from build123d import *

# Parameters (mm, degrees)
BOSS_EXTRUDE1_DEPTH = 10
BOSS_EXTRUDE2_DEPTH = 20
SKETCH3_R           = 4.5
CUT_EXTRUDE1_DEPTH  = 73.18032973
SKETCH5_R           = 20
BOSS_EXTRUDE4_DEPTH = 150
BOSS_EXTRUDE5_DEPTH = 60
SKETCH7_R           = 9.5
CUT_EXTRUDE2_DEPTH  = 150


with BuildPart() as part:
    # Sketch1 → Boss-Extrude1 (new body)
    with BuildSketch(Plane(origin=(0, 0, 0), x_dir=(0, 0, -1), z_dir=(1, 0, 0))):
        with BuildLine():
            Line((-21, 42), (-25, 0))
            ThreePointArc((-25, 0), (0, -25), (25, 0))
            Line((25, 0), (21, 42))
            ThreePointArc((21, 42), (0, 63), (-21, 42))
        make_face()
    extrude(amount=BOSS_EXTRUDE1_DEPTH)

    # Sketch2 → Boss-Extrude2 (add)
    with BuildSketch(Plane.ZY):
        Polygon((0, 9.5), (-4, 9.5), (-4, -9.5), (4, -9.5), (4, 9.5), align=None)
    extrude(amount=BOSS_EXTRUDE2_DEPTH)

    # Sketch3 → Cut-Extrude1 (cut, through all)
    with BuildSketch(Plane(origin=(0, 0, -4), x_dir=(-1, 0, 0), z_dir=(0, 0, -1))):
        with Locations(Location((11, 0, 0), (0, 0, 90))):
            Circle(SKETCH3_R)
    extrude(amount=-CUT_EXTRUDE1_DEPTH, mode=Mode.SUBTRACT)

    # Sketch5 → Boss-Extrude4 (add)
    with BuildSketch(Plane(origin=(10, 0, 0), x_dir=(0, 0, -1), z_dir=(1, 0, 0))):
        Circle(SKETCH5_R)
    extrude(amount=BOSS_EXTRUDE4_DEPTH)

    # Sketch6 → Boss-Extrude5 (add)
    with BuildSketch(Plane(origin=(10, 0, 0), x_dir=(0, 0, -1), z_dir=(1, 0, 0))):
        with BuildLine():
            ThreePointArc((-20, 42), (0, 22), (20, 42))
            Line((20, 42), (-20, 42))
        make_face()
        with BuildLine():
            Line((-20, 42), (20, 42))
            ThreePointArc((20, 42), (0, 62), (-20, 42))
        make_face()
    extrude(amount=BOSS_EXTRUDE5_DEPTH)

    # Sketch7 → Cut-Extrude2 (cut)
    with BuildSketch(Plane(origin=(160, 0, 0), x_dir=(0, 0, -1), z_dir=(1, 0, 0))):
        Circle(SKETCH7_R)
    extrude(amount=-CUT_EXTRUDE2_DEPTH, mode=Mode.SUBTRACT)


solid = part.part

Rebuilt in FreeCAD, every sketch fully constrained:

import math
import FreeCAD as App
import Part
import Sketcher
from FreeCAD import Vector
Q = App.Units.Quantity

doc = App.newDocument("Part")
params = doc.addObject("Spreadsheet::Sheet", "Params")
for row, (alias, value) in enumerate([
    ("sketch1_radius", "25 mm"),
    ("sketch1_radius2", "21 mm"),
    ("pad1_length", "10 mm"),
    ("sketch2_width", "19 mm"),
    ("sketch2_height", "8 mm"),
    ("pad2_length", "20 mm"),
    ("sketch3_diameter", "9 mm"),
    ("sketch4_diameter", "40 mm"),
    ("pad3_length", "150 mm"),
    ("sketch5_diameter", "40 mm"),
    ("pad4_length", "60 mm"),
    ("sketch6_diameter", "19 mm"),
    ("pocket2_length", "150 mm"),
], start=1):
    params.set(f"A{row}", alias)
    params.set(f"B{row}", "=" + value)
    params.setAlias(f"B{row}", alias)

body = doc.addObject("PartDesign::Body", "Body")

# Sketch on YZ plane
sketch1 = body.newObject("Sketcher::SketchObject", "Sketch")
sketch1.AttachmentSupport = (doc.getObject("YZ_Plane"), [""])
sketch1.MapMode = "FlatFace"
sketch1.addGeometry(Part.LineSegment(Vector(42, 21, 0), Vector(0, 25, 0)), False)
sketch1.addGeometry(Part.ArcOfCircle(Part.Circle(Vector(0, 0, 0), Vector(0, 0, 1), 25), math.radians(90), math.radians(270)), False)
sketch1.addGeometry(Part.LineSegment(Vector(0, -25, 0), Vector(42, -21, 0)), False)
sketch1.addGeometry(Part.ArcOfCircle(Part.Circle(Vector(42, 0, 0), Vector(0, 0, 1), 21), math.radians(-90), math.radians(90)), False)
sketch1.addConstraint(Sketcher.Constraint("Coincident", 0, 2, 1, 1))
sketch1.addConstraint(Sketcher.Constraint("Coincident", 1, 2, 2, 1))
sketch1.addConstraint(Sketcher.Constraint("Coincident", 2, 2, 3, 1))
sketch1.addConstraint(Sketcher.Constraint("Coincident", 3, 2, 0, 1))
sketch1.addConstraint(Sketcher.Constraint("Coincident", 1, 3, -1, 1))
sketch1.addConstraint(Sketcher.Constraint("Symmetric", 2, 2, 3, 2, -1))
sketch1.addConstraint(Sketcher.Constraint("PointOnObject", 0, 2, -2))
sketch1.addConstraint(Sketcher.Constraint("PointOnObject", 1, 2, -2))
sketch1.addConstraint(Sketcher.Constraint("Vertical", 3, 3, 2, 2))
sketch1.addConstraint(Sketcher.Constraint("Radius", 1, Q("25 mm")))
sketch1.addConstraint(Sketcher.Constraint("Radius", 3, Q("21 mm")))
sketch1.addConstraint(Sketcher.Constraint("DistanceX", -1, 1, 3, 3, Q("42 mm")))
sketch1.setExpression("Constraints[9]", "Params.sketch1_radius")
sketch1.setExpression("Constraints[10]", "Params.sketch1_radius2")
pad1 = body.newObject("PartDesign::Pad", "Pad")
pad1.Profile = sketch1
pad1.setExpression("Length", "Params.pad1_length")

# Sketch on YZ plane
sketch2 = body.newObject("Sketcher::SketchObject", "Sketch001")
sketch2.AttachmentSupport = (doc.getObject("YZ_Plane"), [""])
sketch2.MapMode = "FlatFace"
sketch2.addGeometry(Part.LineSegment(Vector(10, -4, 0), Vector(-10, -4, 0)), False)
sketch2.addGeometry(Part.LineSegment(Vector(-10, -4, 0), Vector(-10, 4, 0)), False)
sketch2.addGeometry(Part.LineSegment(Vector(-10, 4, 0), Vector(10, 4, 0)), False)
sketch2.addGeometry(Part.LineSegment(Vector(10, 4, 0), Vector(10, -4, 0)), False)
sketch2.addConstraint(Sketcher.Constraint("Coincident", 0, 2, 1, 1))
sketch2.addConstraint(Sketcher.Constraint("Coincident", 1, 2, 2, 1))
sketch2.addConstraint(Sketcher.Constraint("Coincident", 2, 2, 3, 1))
sketch2.addConstraint(Sketcher.Constraint("Coincident", 3, 2, 0, 1))
sketch2.addConstraint(Sketcher.Constraint("Horizontal", 0))
sketch2.addConstraint(Sketcher.Constraint("Vertical", 1))
sketch2.addConstraint(Sketcher.Constraint("Horizontal", 2))
sketch2.addConstraint(Sketcher.Constraint("Vertical", 3))
sketch2.addConstraint(Sketcher.Constraint("Symmetric", 0, 2, 2, 2, -1, 1))
sketch2.addConstraint(Sketcher.Constraint("DistanceX", 0, 2, 0, 1, Q("19 mm")))
sketch2.addConstraint(Sketcher.Constraint("DistanceY", 1, 1, 1, 2, Q("8 mm")))
sketch2.setExpression("Constraints[9]", "Params.sketch2_width")
sketch2.setExpression("Constraints[10]", "Params.sketch2_height")
pad2 = body.newObject("PartDesign::Pad", "Pad001")
pad2.Profile = sketch2
pad2.setExpression("Length", "Params.pad2_length")
pad2.Reversed = True

# Sketch on XY plane
sketch3 = body.newObject("Sketcher::SketchObject", "Sketch002")
sketch3.AttachmentSupport = (doc.getObject("XY_Plane"), [""])
sketch3.MapMode = "FlatFace"
sketch3.AttachmentOffset = App.Placement(Vector(0, 0, -4), App.Rotation())
sketch3.addGeometry(Part.Circle(Vector(-11, 0, 0), Vector(0, 0, 1), 4.5), False)
sketch3.addConstraint(Sketcher.Constraint("PointOnObject", 0, 3, -1))
sketch3.addConstraint(Sketcher.Constraint("Diameter", 0, Q("9 mm")))
sketch3.addConstraint(Sketcher.Constraint("DistanceX", 0, 3, -1, 1, Q("11 mm")))
sketch3.setExpression("Constraints[1]", "Params.sketch3_diameter")
pocket1 = body.newObject("PartDesign::Pocket", "Pocket")
pocket1.Profile = sketch3
pocket1.Type = "ThroughAll"
pocket1.Reversed = True

# Sketch on YZ plane
sketch4 = body.newObject("Sketcher::SketchObject", "Sketch003")
sketch4.AttachmentSupport = (doc.getObject("YZ_Plane"), [""])
sketch4.MapMode = "FlatFace"
sketch4.AttachmentOffset = App.Placement(Vector(0, 0, 10), App.Rotation())
sketch4.addGeometry(Part.Circle(Vector(0, 0, 0), Vector(0, 0, 1), 20), False)
sketch4.addConstraint(Sketcher.Constraint("Coincident", 0, 3, -1, 1))
sketch4.addConstraint(Sketcher.Constraint("Diameter", 0, Q("40 mm")))
sketch4.setExpression("Constraints[1]", "Params.sketch4_diameter")
pad3 = body.newObject("PartDesign::Pad", "Pad002")
pad3.Profile = sketch4
pad3.setExpression("Length", "Params.pad3_length")

# Sketch on YZ plane
sketch5 = body.newObject("Sketcher::SketchObject", "Sketch004")
sketch5.AttachmentSupport = (doc.getObject("YZ_Plane"), [""])
sketch5.MapMode = "FlatFace"
sketch5.AttachmentOffset = App.Placement(Vector(0, 0, 10), App.Rotation())
sketch5.addGeometry(Part.Circle(Vector(42, 0, 0), Vector(0, 0, 1), 20), False)
sketch5.addConstraint(Sketcher.Constraint("PointOnObject", 0, 3, -1))
sketch5.addConstraint(Sketcher.Constraint("Diameter", 0, Q("40 mm")))
sketch5.addConstraint(Sketcher.Constraint("DistanceX", -1, 1, 0, 3, Q("42 mm")))
sketch5.setExpression("Constraints[1]", "Params.sketch5_diameter")
pad4 = body.newObject("PartDesign::Pad", "Pad003")
pad4.Profile = sketch5
pad4.setExpression("Length", "Params.pad4_length")

# Sketch on YZ plane
sketch6 = body.newObject("Sketcher::SketchObject", "Sketch005")
sketch6.AttachmentSupport = (doc.getObject("YZ_Plane"), [""])
sketch6.MapMode = "FlatFace"
sketch6.AttachmentOffset = App.Placement(Vector(0, 0, 160), App.Rotation())
sketch6.addGeometry(Part.Circle(Vector(0, 0, 0), Vector(0, 0, 1), 10), False)
sketch6.addConstraint(Sketcher.Constraint("Coincident", 0, 3, -1, 1))
sketch6.addConstraint(Sketcher.Constraint("Diameter", 0, Q("19 mm")))
sketch6.setExpression("Constraints[1]", "Params.sketch6_diameter")
pocket2 = body.newObject("PartDesign::Pocket", "Pocket001")
pocket2.Profile = sketch6
pocket2.setExpression("Length", "Params.pocket2_length")

doc.recompute()
